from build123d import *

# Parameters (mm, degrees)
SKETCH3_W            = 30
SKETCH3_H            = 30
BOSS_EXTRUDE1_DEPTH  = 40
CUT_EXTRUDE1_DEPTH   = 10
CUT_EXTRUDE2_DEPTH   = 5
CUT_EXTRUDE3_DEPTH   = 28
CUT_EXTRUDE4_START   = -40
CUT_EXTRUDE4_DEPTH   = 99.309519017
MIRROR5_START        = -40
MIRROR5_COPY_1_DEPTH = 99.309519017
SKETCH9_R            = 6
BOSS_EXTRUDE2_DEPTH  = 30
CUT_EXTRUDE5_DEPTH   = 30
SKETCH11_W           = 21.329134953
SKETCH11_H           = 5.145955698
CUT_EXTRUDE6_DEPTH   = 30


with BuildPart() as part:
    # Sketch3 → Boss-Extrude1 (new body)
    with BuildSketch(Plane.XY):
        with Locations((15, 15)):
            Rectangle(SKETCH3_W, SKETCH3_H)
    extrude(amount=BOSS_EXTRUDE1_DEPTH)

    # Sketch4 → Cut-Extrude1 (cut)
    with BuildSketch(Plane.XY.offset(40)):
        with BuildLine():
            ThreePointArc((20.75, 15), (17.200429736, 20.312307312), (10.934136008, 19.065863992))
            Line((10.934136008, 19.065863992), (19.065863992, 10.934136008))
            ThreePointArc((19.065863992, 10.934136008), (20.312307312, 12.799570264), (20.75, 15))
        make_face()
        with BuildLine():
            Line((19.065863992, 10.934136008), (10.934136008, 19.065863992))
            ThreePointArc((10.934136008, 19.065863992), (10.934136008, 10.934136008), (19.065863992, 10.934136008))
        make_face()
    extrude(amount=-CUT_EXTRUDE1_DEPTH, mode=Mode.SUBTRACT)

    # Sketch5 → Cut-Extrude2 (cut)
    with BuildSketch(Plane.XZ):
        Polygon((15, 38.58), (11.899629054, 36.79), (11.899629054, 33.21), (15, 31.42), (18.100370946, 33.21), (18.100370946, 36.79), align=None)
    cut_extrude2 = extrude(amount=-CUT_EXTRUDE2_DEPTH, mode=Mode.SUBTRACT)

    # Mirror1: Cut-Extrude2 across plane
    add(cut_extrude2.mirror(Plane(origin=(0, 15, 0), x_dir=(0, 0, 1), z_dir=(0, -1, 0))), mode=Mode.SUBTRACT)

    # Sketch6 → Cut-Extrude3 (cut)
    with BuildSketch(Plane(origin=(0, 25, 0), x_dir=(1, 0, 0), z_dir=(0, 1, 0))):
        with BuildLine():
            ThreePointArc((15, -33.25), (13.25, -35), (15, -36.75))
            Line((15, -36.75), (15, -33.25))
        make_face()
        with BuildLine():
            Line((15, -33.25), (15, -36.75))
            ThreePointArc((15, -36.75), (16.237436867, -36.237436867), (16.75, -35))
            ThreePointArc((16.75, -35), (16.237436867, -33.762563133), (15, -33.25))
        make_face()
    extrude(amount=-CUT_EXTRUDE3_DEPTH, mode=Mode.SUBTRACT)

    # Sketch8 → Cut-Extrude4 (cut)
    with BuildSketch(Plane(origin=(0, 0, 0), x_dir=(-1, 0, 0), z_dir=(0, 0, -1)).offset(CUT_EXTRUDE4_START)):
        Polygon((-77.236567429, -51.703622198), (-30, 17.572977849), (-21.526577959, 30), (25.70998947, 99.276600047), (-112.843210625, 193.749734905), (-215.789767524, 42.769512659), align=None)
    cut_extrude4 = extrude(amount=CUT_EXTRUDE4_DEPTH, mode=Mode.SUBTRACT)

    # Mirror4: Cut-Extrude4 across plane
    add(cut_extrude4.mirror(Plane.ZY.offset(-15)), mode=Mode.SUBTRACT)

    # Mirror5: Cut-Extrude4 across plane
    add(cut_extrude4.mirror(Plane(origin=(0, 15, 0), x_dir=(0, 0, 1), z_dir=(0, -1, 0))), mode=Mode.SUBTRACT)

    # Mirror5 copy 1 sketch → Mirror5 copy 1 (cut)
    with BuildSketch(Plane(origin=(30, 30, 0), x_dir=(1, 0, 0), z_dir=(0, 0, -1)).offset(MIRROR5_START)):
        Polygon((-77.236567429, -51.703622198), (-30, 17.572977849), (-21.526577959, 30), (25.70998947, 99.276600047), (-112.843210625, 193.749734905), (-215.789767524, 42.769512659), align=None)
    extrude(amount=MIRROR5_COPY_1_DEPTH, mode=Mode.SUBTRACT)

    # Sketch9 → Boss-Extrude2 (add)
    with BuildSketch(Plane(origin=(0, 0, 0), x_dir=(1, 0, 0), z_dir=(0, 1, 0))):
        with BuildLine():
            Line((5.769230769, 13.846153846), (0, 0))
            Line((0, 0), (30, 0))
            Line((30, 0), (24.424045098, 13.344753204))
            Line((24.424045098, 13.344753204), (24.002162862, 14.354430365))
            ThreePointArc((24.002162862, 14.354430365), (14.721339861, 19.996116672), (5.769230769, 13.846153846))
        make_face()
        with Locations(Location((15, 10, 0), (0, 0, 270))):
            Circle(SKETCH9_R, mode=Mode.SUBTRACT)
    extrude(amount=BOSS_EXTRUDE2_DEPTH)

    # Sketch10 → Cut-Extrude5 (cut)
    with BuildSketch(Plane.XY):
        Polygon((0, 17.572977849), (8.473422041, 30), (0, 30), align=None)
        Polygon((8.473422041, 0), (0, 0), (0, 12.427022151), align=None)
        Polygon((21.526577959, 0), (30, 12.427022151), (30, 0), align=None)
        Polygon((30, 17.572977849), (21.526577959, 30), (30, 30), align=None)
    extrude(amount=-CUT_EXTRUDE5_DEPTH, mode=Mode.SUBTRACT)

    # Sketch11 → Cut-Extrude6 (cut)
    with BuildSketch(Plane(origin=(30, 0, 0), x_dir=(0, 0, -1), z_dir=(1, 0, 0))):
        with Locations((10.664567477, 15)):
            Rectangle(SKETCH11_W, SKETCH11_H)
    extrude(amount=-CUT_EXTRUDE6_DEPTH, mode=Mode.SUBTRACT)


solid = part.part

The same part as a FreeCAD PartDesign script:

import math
import FreeCAD as App
import Part
import Sketcher
from FreeCAD import Vector
Q = App.Units.Quantity


def add_polygon(sketch, points):
    """Adds a closed chain of lines whose ends are joined by coincident constraints."""
    first, n = sketch.GeometryCount, len(points)
    for a, b in zip(points, points[1:] + points[:1]):
        sketch.addGeometry(Part.LineSegment(App.Vector(*a, 0), App.Vector(*b, 0)), False)
    for i in range(n):
        sketch.addConstraint(Sketcher.Constraint("Coincident", first + i, 2, first + (i + 1) % n, 1))

doc = App.newDocument("Part")
body = doc.addObject("PartDesign::Body", "Body")

# Sketch on XY plane
sketch1 = body.newObject("Sketcher::SketchObject", "Sketch")
sketch1.AttachmentSupport = (doc.getObject("XY_Plane"), [""])
sketch1.MapMode = "FlatFace"
add_polygon(sketch1, [(0, 30), (0, 0), (30, 0), (30, 30)])  # lines 0-3
sketch1.addConstraint(Sketcher.Constraint("Vertical", 0))
sketch1.addConstraint(Sketcher.Constraint("Horizontal", 1))
sketch1.addConstraint(Sketcher.Constraint("Vertical", 2))
sketch1.addConstraint(Sketcher.Constraint("Horizontal", 3))
sketch1.addConstraint(Sketcher.Constraint("Coincident", 0, 2, -1, 1))
sketch1.addConstraint(Sketcher.Constraint("Equal", 3, 0))
sketch1.addConstraint(Sketcher.Constraint("DistanceX", 1, 1, 1, 2, Q("30 mm")))
pad1 = body.newObject("PartDesign::Pad", "Pad")
pad1.Profile = sketch1
pad1.Length = 40

# Sketch on XY plane
sketch2 = body.newObject("Sketcher::SketchObject", "Sketch001")
sketch2.AttachmentSupport = (doc.getObject("XY_Plane"), [""])
sketch2.MapMode = "FlatFace"
sketch2.AttachmentOffset = App.Placement(Vector(0, 0, 40), App.Rotation())
sketch2.addGeometry(Part.ArcOfCircle(Part.Circle(Vector(15, 15, 0), Vector(0, 0, 1), 5.75), math.radians(0), math.radians(135)), False)
sketch2.addGeometry(Part.ArcOfCircle(Part.Circle(Vector(15, 15, 0), Vector(0, 0, 1), 5.75), math.radians(135), math.radians(315)), False)
sketch2.addGeometry(Part.ArcOfCircle(Part.Circle(Vector(15, 15, 0), Vector(0, 0, 1), 5.75), math.radians(-45), math.radians(0)), False)
sketch2.addConstraint(Sketcher.Constraint("Tangent", 0, 2, 1, 1))
sketch2.addConstraint(Sketcher.Constraint("Tangent", 1, 2, 2, 1))
sketch2.addConstraint(Sketcher.Constraint("Tangent", 2, 2, 0, 1))
sketch2.addConstraint(Sketcher.Constraint("Horizontal", 1, 3, 2, 2))
sketch2.addConstraint(Sketcher.Constraint("Radius", 0, Q("5.75 mm")))
sketch2.addConstraint(Sketcher.Constraint("DistanceX", -1, 1, 0, 3, Q("15 mm")))
sketch2.addConstraint(Sketcher.Constraint("DistanceY", -1, 1, 0, 3, Q("15 mm")))
sketch2.addConstraint(Sketcher.Constraint("DistanceX", -1, 1, 0, 2, Q("10.934136 mm")))
sketch2.addConstraint(Sketcher.Constraint("DistanceX", -1, 1, 1, 2, Q("19.065864 mm")))
pocket1 = body.newObject("PartDesign::Pocket", "Pocket")
pocket1.Profile = sketch2
pocket1.Length = 10

# Sketch on XZ plane
sketch3 = body.newObject("Sketcher::SketchObject", "Sketch002")
sketch3.AttachmentSupport = (doc.getObject("XZ_Plane"), [""])
sketch3.MapMode = "FlatFace"
add_polygon(sketch3, [(15, 38.58), (11.899629, 36.79), (11.899629, 33.21), (15, 31.42), (18.100371, 33.21), (18.100371, 36.79)])  # lines 0-5
sketch3.addConstraint(Sketcher.Constraint("Vertical", 1))
sketch3.addConstraint(Sketcher.Constraint("Vertical", 4))
sketch3.addConstraint(Sketcher.Constraint("Parallel", 0, 3))
sketch3.addConstraint(Sketcher.Constraint("Parallel", 2, 5))
sketch3.addConstraint(Sketcher.Constraint("Horizontal", 1, 2, 3, 2))
sketch3.addConstraint(Sketcher.Constraint("Horizontal", 0, 2, 4, 2))
sketch3.addConstraint(Sketcher.Constraint("Vertical", 2, 2, 5, 2))
sketch3.addConstraint(Sketcher.Constraint("Angle", 0, Q("-150 deg")))
sketch3.addConstraint(Sketcher.Constraint("DistanceX", -1, 1, 2, 2, Q("15 mm")))
sketch3.addConstraint(Sketcher.Constraint("DistanceY", 1, 2, 1, 1, Q("3.58 mm")))
sketch3.addConstraint(Sketcher.Constraint("Distance", 0, Q("3.58 mm")))
sketch3.addConstraint(Sketcher.Constraint("DistanceY", -1, 1, 0, 2, Q("36.79 mm")))
pocket2 = body.newObject("PartDesign::Pocket", "Pocket001")
pocket2.Profile = sketch3
pocket2.Length = 5
doc.recompute()

datumplane = body.newObject("PartDesign::Plane", "DatumPlane")
datumplane.AttachmentSupport = (doc.getObject("XZ_Plane"), [""])
datumplane.MapMode = "FlatFace"
datumplane.AttachmentOffset = App.Placement(Vector(0, 0, -15), App.Rotation())
mirrored = body.newObject("PartDesign::Mirrored", "Mirrored")
mirrored.Originals = [pocket2]
mirrored.MirrorPlane = (datumplane, [""])
body.Tip = mirrored

# Sketch on XZ plane
sketch4 = body.newObject("Sketcher::SketchObject", "Sketch003")
sketch4.AttachmentSupport = (doc.getObject("XZ_Plane"), [""])
sketch4.MapMode = "FlatFace"
sketch4.AttachmentOffset = App.Placement(Vector(0, 0, -25), App.Rotation())
sketch4.addGeometry(Part.ArcOfCircle(Part.Circle(Vector(15, 35, 0), Vector(0, 0, 1), 1.75), math.radians(90), math.radians(270)), False)
sketch4.addGeometry(Part.ArcOfCircle(Part.Circle(Vector(15, 35, 0), Vector(0, 0, 1), 1.75), math.radians(0), math.radians(90)), False)
sketch4.addGeometry(Part.ArcOfCircle(Part.Circle(Vector(15, 35, 0), Vector(0, 0, 1), 1.75), math.radians(-90), math.radians(0)), False)
sketch4.addConstraint(Sketcher.Constraint("Tangent", 0, 1, 1, 2))
sketch4.addConstraint(Sketcher.Constraint("Tangent", 1, 1, 2, 2))
sketch4.addConstraint(Sketcher.Constraint("Tangent", 2, 1, 0, 2))
sketch4.addConstraint(Sketcher.Constraint("Horizontal", 2, 3, 1, 1))
sketch4.addConstraint(Sketcher.Constraint("Vertical", 2, 3, 0, 1))
sketch4.addConstraint(Sketcher.Constraint("Vertical", 0, 1, 2, 1))
sketch4.addConstraint(Sketcher.Constraint("Radius", 0, Q("1.75 mm")))
sketch4.addConstraint(Sketcher.Constraint("DistanceX", -1, 1, 0, 3, Q("15 mm")))
sketch4.addConstraint(Sketcher.Constraint("DistanceY", -1, 1, 0, 3, Q("35 mm")))
pocket3 = body.newObject("PartDesign::Pocket", "Pocket002")
pocket3.Profile = sketch4
pocket3.Length = 28
pocket3.Reversed = True

# Sketch on XY plane
sketch5 = body.newObject("Sketcher::SketchObject", "Sketch004")
sketch5.AttachmentSupport = (doc.getObject("XY_Plane"), [""])
sketch5.MapMode = "FlatFace"
sketch5.AttachmentOffset = App.Placement(Vector(0, 0, 40), App.Rotation())
add_polygon(sketch5, [(77.236567, -51.703622), (30, 17.572978), (21.526578, 30), (-25.709989, 99.2766), (112.843211, 193.749735), (215.789768, 42.769513)])  # lines 0-5
sketch5.addConstraint(Sketcher.Constraint("Parallel", 0, 1))
sketch5.addConstraint(Sketcher.Constraint("Parallel", 1, 2))
sketch5.addConstraint(Sketcher.Constraint("Perpendicular", 2, 3))
sketch5.addConstraint(Sketcher.Constraint("Perpendicular", 3, 4))
sketch5.addConstraint(Sketcher.Constraint("Perpendicular", 4, 5))
sketch5.addConstraint(Sketcher.Constraint("Equal", 0, 2))
sketch5.addConstraint(Sketcher.Constraint("DistanceX", -1, 1, 0, 2, Q("30 mm")))
sketch5.addConstraint(Sketcher.Constraint("DistanceY", -1, 1, 1, 2, Q("30 mm")))
sketch5.addConstraint(Sketcher.Constraint("DistanceY", -1, 1, 2, 2, Q("99.2766 mm")))
sketch5.addConstraint(Sketcher.Constraint("DistanceX", 2, 2, 3, 2, Q("138.5532 mm")))
sketch5.addConstraint(Sketcher.Constraint("Distance", 0, Q("83.848319 mm")))
sketch5.addConstraint(Sketcher.Constraint("DistanceX", 2, 2, -1, 1, Q("25.709989 mm")))
pocket4 = body.newObject("PartDesign::Pocket", "Pocket003")
pocket4.Profile = sketch5
pocket4.Length = 99.309519
doc.recompute()

datumplane2 = body.newObject("PartDesign::Plane", "DatumPlane001")
datumplane2.AttachmentSupport = (doc.getObject("YZ_Plane"), [""])
datumplane2.MapMode = "FlatFace"
datumplane2.AttachmentOffset = App.Placement(Vector(0, 0, 15), App.Rotation())
mirrored2 = body.newObject("PartDesign::Mirrored", "Mirrored001")
mirrored2.Originals = [pocket4]
mirrored2.MirrorPlane = (datumplane2, [""])
body.Tip = mirrored2
doc.recompute()

datumplane3 = body.newObject("PartDesign::Plane", "DatumPlane002")
datumplane3.AttachmentSupport = (doc.getObject("XZ_Plane"), [""])
datumplane3.MapMode = "FlatFace"
datumplane3.AttachmentOffset = App.Placement(Vector(0, 0, -15), App.Rotation())
mirrored3 = body.newObject("PartDesign::Mirrored", "Mirrored002")
mirrored3.Originals = [pocket4]
mirrored3.MirrorPlane = (datumplane3, [""])
body.Tip = mirrored3

# Sketch on XY plane
sketch6 = body.newObject("Sketcher::SketchObject", "Sketch005")
sketch6.AttachmentSupport = (doc.getObject("XY_Plane"), [""])
sketch6.MapMode = "FlatFace"
sketch6.AttachmentOffset = App.Placement(Vector(0, 0, 40), App.Rotation())
add_polygon(sketch6, [(-47.236567, 81.703622), (0, 12.427022), (8.473422, 0), (55.709989, -69.2766), (-82.843211, -163.749735), (-185.789768, -12.769513)])  # lines 0-5
sketch6.addConstraint(Sketcher.Constraint("PointOnObject", 0, 2, -2))
sketch6.addConstraint(Sketcher.Constraint("PointOnObject", 1, 2, -1))
sketch6.addConstraint(Sketcher.Constraint("Parallel", 0, 1))
sketch6.addConstraint(Sketcher.Constraint("Parallel", 1, 2))
sketch6.addConstraint(Sketcher.Constraint("Perpendicular", 2, 3))
sketch6.addConstraint(Sketcher.Constraint("Perpendicular", 3, 4))
sketch6.addConstraint(Sketcher.Constraint("Perpendicular", 4, 5))
sketch6.addConstraint(Sketcher.Constraint("Equal", 0, 2))
sketch6.addConstraint(Sketcher.Constraint("DistanceY", 2, 2, -1, 1, Q("69.2766 mm")))
sketch6.addConstraint(Sketcher.Constraint("DistanceX", 3, 2, 2, 2, Q("138.5532 mm")))
sketch6.addConstraint(Sketcher.Constraint("Distance", 0, Q("83.848319 mm")))
sketch6.addConstraint(Sketcher.Constraint("DistanceX", -1, 1, 2, 2, Q("55.709989 mm")))
pocket5 = body.newObject("PartDesign::Pocket", "Pocket004")
pocket5.Profile = sketch6
pocket5.Length = 99.309519

# Sketch on XZ plane
sketch7 = body.newObject("Sketcher::SketchObject", "Sketch006")
sketch7.AttachmentSupport = (doc.getObject("XZ_Plane"), [""])
sketch7.MapMode = "FlatFace"
sketch7.addGeometry(Part.LineSegment(Vector(5.769231, -13.846154, 0), Vector(0, 0, 0)), False)
sketch7.addGeometry(Part.LineSegment(Vector(0, 0, 0), Vector(30, 0, 0)), False)
sketch7.addGeometry(Part.LineSegment(Vector(30, 0, 0), Vector(24.424045, -13.344753, 0)), False)
sketch7.addGeometry(Part.LineSegment(Vector(24.424045, -13.344753, 0), Vector(24.002163, -14.35443, 0)), False)
sketch7.addGeometry(Part.ArcOfCircle(Part.Circle(Vector(15, -10, 0), Vector(0, 0, 1), 10), math.radians(-157.380135), math.radians(-25.813488)), False)
sketch7.addGeometry(Part.Circle(Vector(15, -10, 0), Vector(0, 0, 1), 6), False)
sketch7.addConstraint(Sketcher.Constraint("Coincident", 0, 2, 1, 1))
sketch7.addConstraint(Sketcher.Constraint("Coincident", 1, 2, 2, 1))
sketch7.addConstraint(Sketcher.Constraint("Coincident", 2, 2, 3, 1))
sketch7.addConstraint(Sketcher.Constraint("Coincident", 3, 2, 4, 2))
sketch7.addConstraint(Sketcher.Constraint("Tangent", 4, 1, 0, 1))
sketch7.addConstraint(Sketcher.Constraint("Horizontal", 1))
sketch7.addConstraint(Sketcher.Constraint("Coincident", 0, 2, -1, 1))
sketch7.addConstraint(Sketcher.Constraint("Coincident", 5, 3, 4, 3))
sketch7.addConstraint(Sketcher.Constraint("Parallel", 2, 3))
sketch7.addConstraint(Sketcher.Constraint("Diameter", 5, Q("12 mm")))
sketch7.addConstraint(Sketcher.Constraint("Radius", 4, Q("10 mm")))
sketch7.addConstraint(Sketcher.Constraint("DistanceX", 1, 1, 1, 2, Q("30 mm")))
sketch7.addConstraint(Sketcher.Constraint("Distance", 0, Q("15 mm")))
sketch7.addConstraint(Sketcher.Constraint("DistanceX", -1, 1, 4, 3, Q("15 mm")))
sketch7.addConstraint(Sketcher.Constraint("DistanceY", 4, 1, 2, 2, Q("0.501401 mm")))
sketch7.addConstraint(Sketcher.Constraint("Distance", 2, Q("14.462839 mm")))
pad2 = body.newObject("PartDesign::Pad", "Pad001")
pad2.Profile = sketch7
pad2.Length = 30
pad2.Reversed = True

# Sketch on XY plane
sketch8 = body.newObject("Sketcher::SketchObject", "Sketch007")
sketch8.AttachmentSupport = (doc.getObject("XY_Plane"), [""])
sketch8.MapMode = "FlatFace"
add_polygon(sketch8, [(0, 17.572978), (8.473422, 30), (0, 30)])  # lines 0-2
add_polygon(sketch8, [(0, 0), (8.473422, 0), (0, 12.427022)])  # lines 3-5
add_polygon(sketch8, [(30, 12.427022), (21.526578, 0), (30, 0)])  # lines 6-8
add_polygon(sketch8, [(21.526578, 30), (30, 17.572978), (30, 30)])  # lines 9-11
sketch8.addConstraint(Sketcher.Constraint("Horizontal", 1))
sketch8.addConstraint(Sketcher.Constraint("Vertical", 2))
sketch8.addConstraint(Sketcher.Constraint("Horizontal", 3))
sketch8.addConstraint(Sketcher.Constraint("Vertical", 5))
sketch8.addConstraint(Sketcher.Constraint("Horizontal", 7))
sketch8.addConstraint(Sketcher.Constraint("Vertical", 8))
sketch8.addConstraint(Sketcher.Constraint("Vertical", 10))
sketch8.addConstraint(Sketcher.Constraint("Horizontal", 11))
sketch8.addConstraint(Sketcher.Constraint("Coincident", 5, 2, -1, 1))
sketch8.addConstraint(Sketcher.Constraint("PointOnObject", 1, 2, -2))
sketch8.addConstraint(Sketcher.Constraint("PointOnObject", 6, 2, -1))
sketch8.addConstraint(Sketcher.Constraint("Parallel", 0, 6))
sketch8.addConstraint(Sketcher.Constraint("Parallel", 4, 9))
sketch8.addConstraint(Sketcher.Constraint("Horizontal", 4, 2, 8, 2))
sketch8.addConstraint(Sketcher.Constraint("Horizontal", 2, 2, 9, 2))
sketch8.addConstraint(Sketcher.Constraint("Horizontal", 1, 2, 10, 2))
sketch8.addConstraint(Sketcher.Constraint("Vertical", 0, 2, 3, 2))
sketch8.addConstraint(Sketcher.Constraint("Vertical", 8, 2, 9, 2))
sketch8.addConstraint(Sketcher.Constraint("Vertical", 6, 2, 11, 2))
sketch8.addConstraint(Sketcher.Constraint("DistanceY", -1, 1, 0, 2, Q("30 mm")))
sketch8.addConstraint(Sketcher.Constraint("DistanceX", -1, 1, 7, 2, Q("30 mm")))
sketch8.addConstraint(Sketcher.Constraint("DistanceX", 1, 2, 1, 1, Q("8.473422 mm")))
sketch8.addConstraint(Sketcher.Constraint("DistanceY", 2, 2, 2, 1, Q("12.427022 mm")))
pocket6 = body.newObject("PartDesign::Pocket", "Pocket005")
pocket6.Profile = sketch8
pocket6.Length = 30

# Sketch on YZ plane
sketch9 = body.newObject("Sketcher::SketchObject", "Sketch008")
sketch9.AttachmentSupport = (doc.getObject("YZ_Plane"), [""])
sketch9.MapMode = "FlatFace"
sketch9.AttachmentOffset = App.Placement(Vector(0, 0, 30), App.Rotation())
add_polygon(sketch9, [(17.572978, 0), (12.427022, 0), (12.427022, -21.329135), (17.572978, -21.329135)])  # lines 0-3
sketch9.addConstraint(Sketcher.Constraint("Horizontal", 0))
sketch9.addConstraint(Sketcher.Constraint("Vertical", 1))
sketch9.addConstraint(Sketcher.Constraint("Horizontal", 2))
sketch9.addConstraint(Sketcher.Constraint("Vertical", 3))
sketch9.addConstraint(Sketcher.Constraint("PointOnObject", 0, 2, -1))
sketch9.addConstraint(Sketcher.Constraint("DistanceX", 0, 2, 0, 1, Q("5.145956 mm")))
sketch9.addConstraint(Sketcher.Constraint("DistanceY", 1, 2, 1, 1, Q("21.329135 mm")))
sketch9.addConstraint(Sketcher.Constraint("DistanceX", -1, 1, 0, 2, Q("12.427022 mm")))
pocket7 = body.newObject("PartDesign::Pocket", "Pocket006")
pocket7.Profile = sketch9
pocket7.Length = 30

doc.recompute()
